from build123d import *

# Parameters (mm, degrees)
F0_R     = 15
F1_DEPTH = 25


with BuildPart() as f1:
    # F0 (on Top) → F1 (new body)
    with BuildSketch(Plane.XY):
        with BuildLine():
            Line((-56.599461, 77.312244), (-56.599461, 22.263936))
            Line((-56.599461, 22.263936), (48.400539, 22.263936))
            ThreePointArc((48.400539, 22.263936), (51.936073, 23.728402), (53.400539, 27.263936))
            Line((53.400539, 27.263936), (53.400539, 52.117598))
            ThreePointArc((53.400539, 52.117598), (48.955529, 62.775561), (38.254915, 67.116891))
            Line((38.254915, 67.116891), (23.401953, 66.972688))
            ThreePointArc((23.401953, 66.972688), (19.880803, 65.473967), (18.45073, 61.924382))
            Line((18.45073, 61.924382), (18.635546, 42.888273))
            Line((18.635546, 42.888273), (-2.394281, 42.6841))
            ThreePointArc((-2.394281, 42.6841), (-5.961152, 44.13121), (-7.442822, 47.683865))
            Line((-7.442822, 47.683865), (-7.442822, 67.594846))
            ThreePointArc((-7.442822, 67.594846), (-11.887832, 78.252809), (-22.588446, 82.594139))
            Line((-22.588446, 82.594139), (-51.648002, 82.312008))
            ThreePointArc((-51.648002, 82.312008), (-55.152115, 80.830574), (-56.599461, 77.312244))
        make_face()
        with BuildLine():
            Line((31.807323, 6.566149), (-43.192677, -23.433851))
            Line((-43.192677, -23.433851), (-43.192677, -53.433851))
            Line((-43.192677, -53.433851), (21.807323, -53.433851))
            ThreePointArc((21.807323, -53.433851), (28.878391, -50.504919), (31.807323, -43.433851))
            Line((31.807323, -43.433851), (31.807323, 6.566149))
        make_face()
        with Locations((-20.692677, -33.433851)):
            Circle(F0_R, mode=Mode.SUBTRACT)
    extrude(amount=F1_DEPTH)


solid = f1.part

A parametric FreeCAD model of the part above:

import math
import FreeCAD as App
import Part
import Sketcher

V = App.Vector

doc = App.newDocument("Part")
params = doc.addObject("Spreadsheet::Sheet", "Params")
for row, (alias, value) in enumerate([
    ("sketch1_diameter", "30 mm"),
    ("sketch1_radius", "5 mm"),
    ("sketch1_radius2", "9.999999 mm"),
    ("sketch1_width", "105 mm"),
    ("sketch1_width2", "65 mm"),
    ("pad1_length", "25 mm"),
], start=1):
    params.set(f"A{row}", alias)
    params.set(f"B{row}", "=" + value)
    params.setAlias(f"B{row}", alias)

body = doc.addObject("PartDesign::Body", "Body")
body.AllowCompound = True

sketch1 = doc.addObject("Sketcher::SketchObject", "Sketch")
body.addObject(sketch1)
sketch1.AttachmentSupport = (doc.XY_Plane, [""])
sketch1.MapMode = "FlatFace"
sketch1.addGeometry([
    Part.LineSegment(V(-56.599461, 77.312244, 0), V(-56.599461, 22.263936, 0)),
    Part.LineSegment(V(-56.599461, 22.263936, 0), V(48.400539, 22.263936, 0)),
    Part.ArcOfCircle(Part.Circle(V(48.400539, 27.263936, 0), V(0, 0, 1), 5), math.radians(-90.000004), math.radians(0.000004)),
    Part.LineSegment(V(53.400539, 27.263936, 0), V(53.400539, 52.117598, 0)),
    Part.ArcOfCircle(Part.Circle(V(38.400538, 52.117597, 0), V(0, 0, 1), 15.000001), math.radians(0.000003), math.radians(90.556249)),
    Part.LineSegment(V(38.254915, 67.116891, 0), V(23.401953, 66.972688, 0)),
    Part.ArcOfCircle(Part.Circle(V(23.450494, 61.972924, 0), V(0, 0, 1), 5), math.radians(90.556249), math.radians(180.556258)),
    Part.LineSegment(V(18.45073, 61.924382, 0), V(18.635546, 42.888273, 0)),
    Part.LineSegment(V(18.635546, 42.888273, 0), V(-2.394281, 42.6841, 0)),
    Part.ArcOfCircle(Part.Circle(V(-2.442822, 47.683865, 0), V(0, 0, 1), 5), math.radians(179.999995), math.radians(270.556245)),
    Part.LineSegment(V(-7.442822, 47.683865, 0), V(-7.442822, 67.594846, 0)),
    Part.ArcOfCircle(Part.Circle(V(-22.442823, 67.594845, 0), V(0, 0, 1), 15.000001), math.radians(0.000003), math.radians(90.556249)),
    Part.LineSegment(V(-22.588446, 82.594139, 0), V(-51.648002, 82.312008, 0)),
    Part.ArcOfCircle(Part.Circle(V(-51.599461, 77.312243, 0), V(0, 0, 1), 5), math.radians(90.55625), math.radians(179.999993)),
    Part.LineSegment(V(31.807323, 6.566149, 0), V(-43.192677, -23.433851, 0)),
    Part.LineSegment(V(-43.192677, -23.433851, 0), V(-43.192677, -53.433851, 0)),
    Part.LineSegment(V(-43.192677, -53.433851, 0), V(21.807323, -53.433851, 0)),
    Part.ArcOfCircle(Part.Circle(V(21.807324, -43.433852, 0), V(0, 0, 1), 9.999999), math.radians(-90.000004), math.radians(0.000004)),
    Part.LineSegment(V(31.807323, -43.433851, 0), V(31.807323, 6.566149, 0)),
    Part.Circle(V(-20.692677, -33.433851, 0), V(0, 0, 1), 15),
], False)
sketch1.addConstraint([
    Sketcher.Constraint("Coincident", 0, 2, 1, 1),
    Sketcher.Constraint("Tangent", 1, 2, 2, 1),
    Sketcher.Constraint("Tangent", 2, 2, 3, 1),
    Sketcher.Constraint("Tangent", 3, 2, 4, 1),
    Sketcher.Constraint("Tangent", 4, 2, 5, 1),
    Sketcher.Constraint("Tangent", 5, 2, 6, 1),
    Sketcher.Constraint("Tangent", 6, 2, 7, 1),
    Sketcher.Constraint("Coincident", 7, 2, 8, 1),
    Sketcher.Constraint("Tangent", 8, 2, 9, 2),
    Sketcher.Constraint("Tangent", 9, 1, 10, 1),
    Sketcher.Constraint("Tangent", 10, 2, 11, 1),
    Sketcher.Constraint("Tangent", 11, 2, 12, 1),
    Sketcher.Constraint("Tangent", 12, 2, 13, 1),
    Sketcher.Constraint("Tangent", 13, 2, 0, 1),
    Sketcher.Constraint("Coincident", 14, 2, 15, 1),
    Sketcher.Constraint("Coincident", 15, 2, 16, 1),
    Sketcher.Constraint("Tangent", 16, 2, 17, 1),
    Sketcher.Constraint("Tangent", 17, 2, 18, 1),
    Sketcher.Constraint("Coincident", 18, 2, 14, 1),
    Sketcher.Constraint("Vertical", 0),
    Sketcher.Constraint("Horizontal", 1),
    Sketcher.Constraint("Vertical", 3),
    Sketcher.Constraint("Vertical", 10),
    Sketcher.Constraint("Vertical", 15),
    Sketcher.Constraint("Horizontal", 16),
    Sketcher.Constraint("Vertical", 18),
    Sketcher.Constraint("Equal", 2, 6),
    Sketcher.Constraint("Equal", 6, 9),
    Sketcher.Constraint("Equal", 4, 11),
    Sketcher.Constraint("Equal", 9, 13),
    Sketcher.Constraint("Equal", 11, 19),
    Sketcher.Constraint("Perpendicular", 5, 7),
    Sketcher.Constraint("Perpendicular", 7, 8),
    Sketcher.Constraint("Parallel", 8, 12),
    Sketcher.Constraint("Diameter", 19, 30.0),
    Sketcher.Constraint("Radius", 2, 5.0),
    Sketcher.Constraint("Radius", 17, 9.999999),
    Sketcher.Constraint("DistanceX", 1, 1, 1, 2, 105.0),
    Sketcher.Constraint("DistanceX", 16, 1, 16, 2, 65.0),
    Sketcher.Constraint("DistanceY", 15, 2, 15, 1, 30.0),
    Sketcher.Constraint("DistanceY", 18, 1, 18, 2, 50.0),
    Sketcher.Constraint("DistanceY", 17, 3, 19, 3, 10.000001),
    Sketcher.Constraint("DistanceX", 19, 3, 17, 3, 42.500001),
    Sketcher.Constraint("DistanceX", 12, 2, -1, 1, 51.648002),
    Sketcher.Constraint("DistanceY", 0, 2, 0, 1, 55.048308),
    Sketcher.Constraint("DistanceY", 3, 1, 3, 2, 24.853662),
    Sketcher.Constraint("DistanceY", 10, 1, 10, 2, 19.910981),
    Sketcher.Constraint("DistanceY", -1, 1, 8, 2, 42.6841),
    Sketcher.Constraint("DistanceY", 11, 3, 13, 3, 9.717398),
    Sketcher.Constraint("Distance", 5, 14.853662),
    Sketcher.Constraint("Distance", 8, 21.030818),
    Sketcher.Constraint("DistanceY", 17, 3, -1, 1, 43.433852),
    Sketcher.Constraint("DistanceX", 17, 3, 6, 3, 1.64317),
])
sketch1.setExpression("Constraints[34]", "Params.sketch1_diameter")
sketch1.setExpression("Constraints[35]", "Params.sketch1_radius")
sketch1.setExpression("Constraints[36]", "Params.sketch1_radius2")
sketch1.setExpression("Constraints[37]", "Params.sketch1_width")
sketch1.setExpression("Constraints[38]", "Params.sketch1_width2")
pad1 = doc.addObject("PartDesign::Pad", "Pad")
body.addObject(pad1)
pad1.Profile = sketch1
pad1.setExpression("Length", "Params.pad1_length")

doc.recompute()
